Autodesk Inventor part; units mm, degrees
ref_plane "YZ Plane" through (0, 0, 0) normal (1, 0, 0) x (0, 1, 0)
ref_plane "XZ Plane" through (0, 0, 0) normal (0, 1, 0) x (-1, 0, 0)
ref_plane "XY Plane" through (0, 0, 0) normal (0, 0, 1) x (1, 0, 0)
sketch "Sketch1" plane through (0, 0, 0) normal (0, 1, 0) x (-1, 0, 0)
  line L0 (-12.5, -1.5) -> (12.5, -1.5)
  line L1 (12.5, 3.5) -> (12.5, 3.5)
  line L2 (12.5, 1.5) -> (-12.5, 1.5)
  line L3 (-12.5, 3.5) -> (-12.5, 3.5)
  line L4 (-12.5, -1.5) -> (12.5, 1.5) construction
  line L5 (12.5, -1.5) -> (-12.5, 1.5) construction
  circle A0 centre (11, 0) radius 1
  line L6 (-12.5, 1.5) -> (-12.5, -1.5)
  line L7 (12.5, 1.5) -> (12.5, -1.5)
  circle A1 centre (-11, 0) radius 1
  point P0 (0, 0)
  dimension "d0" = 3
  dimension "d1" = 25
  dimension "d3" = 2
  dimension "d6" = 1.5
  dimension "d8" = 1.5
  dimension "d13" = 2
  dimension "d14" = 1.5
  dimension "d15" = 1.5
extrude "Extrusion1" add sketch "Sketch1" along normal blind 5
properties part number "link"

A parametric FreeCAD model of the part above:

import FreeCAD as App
import Part
import Sketcher
from FreeCAD import Vector


def add_polygon(sketch, points):
    """Adds a closed chain of lines whose ends are joined by coincident constraints."""
    first, n = sketch.GeometryCount, len(points)
    for a, b in zip(points, points[1:] + points[:1]):
        sketch.addGeometry(Part.LineSegment(App.Vector(*a, 0), App.Vector(*b, 0)), False)
    for i in range(n):
        sketch.addConstraint(Sketcher.Constraint("Coincident", first + i, 2, first + (i + 1) % n, 1))

doc = App.newDocument("Part")
body = doc.addObject("PartDesign::Body", "Body")

sketch1 = body.newObject("Sketcher::SketchObject", "Sketch")
sketch1.AttachmentSupport = (doc.getObject("XZ_Plane"), [""])
sketch1.MapMode = "FlatFace"
add_polygon(sketch1, [(12.5, 1.5), (12.5, -1.5), (-12.5, -1.5), (-12.5, 1.5)])
sketch1.addGeometry(Part.Circle(Vector(11, 0, 0), Vector(0, 0, 1), 1), False)
sketch1.addGeometry(Part.Circle(Vector(-11, 0, 0), Vector(0, 0, 1), 1), False)
sketch1.addConstraint([
    Sketcher.Constraint("Vertical", 0),
    Sketcher.Constraint("Horizontal", 1),
    Sketcher.Constraint("Vertical", 2),
    Sketcher.Constraint("Horizontal", 3),
    Sketcher.Constraint("Equal", 4, 5),
    Sketcher.Constraint("Symmetric", 4, 3, 5, 3, -1, 1),
    Sketcher.Constraint("Symmetric", 0, 2, 2, 2, -1, 1),
    Sketcher.Constraint("PointOnObject", 4, 3, -1),
    Sketcher.Constraint("Diameter", 4, 2.0),
    Sketcher.Constraint("DistanceX", 1, 2, 1, 1, 25.0),
    Sketcher.Constraint("DistanceY", 0, 2, 0, 1, 3.0),
    Sketcher.Constraint("DistanceX", 4, 3, 0, 2, 1.5),
])
pad1 = body.newObject("PartDesign::Pad", "Pad")
pad1.Profile = sketch1
pad1.Length = 5
pad1.Reversed = True

doc.recompute()
